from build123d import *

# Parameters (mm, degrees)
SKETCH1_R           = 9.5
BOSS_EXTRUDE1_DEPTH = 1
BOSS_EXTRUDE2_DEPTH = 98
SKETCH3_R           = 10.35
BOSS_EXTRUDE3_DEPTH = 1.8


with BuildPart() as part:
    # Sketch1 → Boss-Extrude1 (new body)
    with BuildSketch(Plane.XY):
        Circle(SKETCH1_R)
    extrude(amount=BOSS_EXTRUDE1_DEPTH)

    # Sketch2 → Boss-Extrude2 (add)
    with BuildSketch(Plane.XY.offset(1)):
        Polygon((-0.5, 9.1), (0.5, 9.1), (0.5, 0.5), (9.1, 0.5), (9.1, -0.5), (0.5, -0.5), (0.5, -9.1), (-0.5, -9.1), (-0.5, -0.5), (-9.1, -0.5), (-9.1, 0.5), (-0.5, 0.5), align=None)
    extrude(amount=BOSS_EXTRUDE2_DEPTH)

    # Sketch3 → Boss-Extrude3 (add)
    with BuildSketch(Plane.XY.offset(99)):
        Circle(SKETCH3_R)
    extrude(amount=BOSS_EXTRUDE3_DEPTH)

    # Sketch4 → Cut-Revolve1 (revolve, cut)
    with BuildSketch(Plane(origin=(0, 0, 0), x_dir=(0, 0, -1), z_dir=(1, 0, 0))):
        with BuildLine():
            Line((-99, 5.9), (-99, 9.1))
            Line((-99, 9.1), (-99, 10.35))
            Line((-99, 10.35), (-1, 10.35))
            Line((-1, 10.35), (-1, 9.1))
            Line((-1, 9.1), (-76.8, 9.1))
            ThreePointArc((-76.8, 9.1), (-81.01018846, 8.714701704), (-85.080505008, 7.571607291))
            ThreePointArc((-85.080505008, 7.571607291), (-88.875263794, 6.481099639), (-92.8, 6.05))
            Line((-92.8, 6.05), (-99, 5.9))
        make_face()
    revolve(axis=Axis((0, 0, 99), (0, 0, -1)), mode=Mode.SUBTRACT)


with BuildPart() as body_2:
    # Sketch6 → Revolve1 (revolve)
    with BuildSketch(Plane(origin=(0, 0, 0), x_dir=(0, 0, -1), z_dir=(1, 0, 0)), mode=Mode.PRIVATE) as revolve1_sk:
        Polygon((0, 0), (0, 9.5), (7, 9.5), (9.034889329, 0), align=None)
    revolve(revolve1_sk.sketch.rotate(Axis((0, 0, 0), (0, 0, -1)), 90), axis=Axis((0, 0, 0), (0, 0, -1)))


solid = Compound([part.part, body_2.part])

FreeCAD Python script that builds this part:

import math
import FreeCAD as App
import Part
import Sketcher
Q = App.Units.Quantity

doc = App.newDocument("Part")
body = doc.addObject("PartDesign::Body", "Body")

# Sketch on XY plane
sketch1 = doc.addObject("Sketcher::SketchObject", "Sketch")
body.addObject(sketch1)
sketch1.AttachmentSupport = (doc.XY_Plane, [""])
sketch1.MapMode = "FlatFace"
sketch1.addGeometry(Part.Circle(App.Vector(0, 0, 0), App.Vector(0, 0, 1), 10), False)
sketch1.addConstraint([
    Sketcher.Constraint("Coincident", 0, 3, -1, 1),
    Sketcher.Constraint("Diameter", 0, 19.0),
])
pad1 = doc.addObject("PartDesign::Pad", "Pad")
body.addObject(pad1)
pad1.Profile = sketch1
pad1.Length = 1

# Sketch on XY plane
sketch2 = doc.addObject("Sketcher::SketchObject", "Sketch001")
body.addObject(sketch2)
sketch2.AttachmentSupport = (doc.XY_Plane, [""])
sketch2.MapMode = "FlatFace"
sketch2.AttachmentOffset = App.Placement(App.Vector(0, 0, 1), App.Rotation())
sketch2.addGeometry([
    Part.LineSegment(App.Vector(0.5, 9.1, 0), App.Vector(-0.5, 9.1, 0)),  # 0
    Part.LineSegment(App.Vector(-0.5, 9.1, 0), App.Vector(-0.5, 0.5, 0)),  # 1
    Part.LineSegment(App.Vector(-0.5, 0.5, 0), App.Vector(-9.1, 0.5, 0)),  # 2
    Part.LineSegment(App.Vector(-9.1, 0.5, 0), App.Vector(-9.1, -0.5, 0)),  # 3
    Part.LineSegment(App.Vector(-9.1, -0.5, 0), App.Vector(-0.5, -0.5, 0)),  # 4
    Part.LineSegment(App.Vector(-0.5, -0.5, 0), App.Vector(-0.5, -9.1, 0)),  # 5
    Part.LineSegment(App.Vector(-0.5, -9.1, 0), App.Vector(0.5, -9.1, 0)),  # 6
    Part.LineSegment(App.Vector(0.5, -9.1, 0), App.Vector(0.5, -0.5, 0)),  # 7
    Part.LineSegment(App.Vector(0.5, -0.5, 0), App.Vector(9.1, -0.5, 0)),  # 8
    Part.LineSegment(App.Vector(9.1, -0.5, 0), App.Vector(9.1, 0.5, 0)),  # 9
    Part.LineSegment(App.Vector(9.1, 0.5, 0), App.Vector(0.5, 0.5, 0)),  # 10
    Part.LineSegment(App.Vector(0.5, 0.5, 0), App.Vector(0.5, 9.1, 0)),  # 11
], False)
sketch2.addConstraint([
    Sketcher.Constraint("Coincident", 0, 2, 1, 1),
    Sketcher.Constraint("Coincident", 1, 2, 2, 1),
    Sketcher.Constraint("Coincident", 2, 2, 3, 1),
    Sketcher.Constraint("Coincident", 3, 2, 4, 1),
    Sketcher.Constraint("Coincident", 4, 2, 5, 1),
    Sketcher.Constraint("Coincident", 5, 2, 6, 1),
    Sketcher.Constraint("Coincident", 6, 2, 7, 1),
    Sketcher.Constraint("Coincident", 7, 2, 8, 1),
    Sketcher.Constraint("Coincident", 8, 2, 9, 1),
    Sketcher.Constraint("Coincident", 9, 2, 10, 1),
    Sketcher.Constraint("Coincident", 10, 2, 11, 1),
    Sketcher.Constraint("Coincident", 11, 2, 0, 1),
    Sketcher.Constraint("Horizontal", 0),
    Sketcher.Constraint("Vertical", 1),
    Sketcher.Constraint("Horizontal", 2),
    Sketcher.Constraint("Vertical", 3),
    Sketcher.Constraint("Horizontal", 4),
    Sketcher.Constraint("Vertical", 5),
    Sketcher.Constraint("Horizontal", 6),
    Sketcher.Constraint("Vertical", 7),
    Sketcher.Constraint("Horizontal", 8),
    Sketcher.Constraint("Vertical", 9),
    Sketcher.Constraint("Horizontal", 10),
    Sketcher.Constraint("Vertical", 11),
    Sketcher.Constraint("Symmetric", 0, 2, 6, 2, -1, 1),
    Sketcher.Constraint("Symmetric", 2, 2, 8, 2, -1, 1),
    Sketcher.Constraint("Symmetric", 4, 2, 10, 2, -1, 1),
    Sketcher.Constraint("Symmetric", 4, 2, 7, 2, -2),
    Sketcher.Constraint("Equal", 10, 1),
    Sketcher.Constraint("Equal", 6, 3),
    Sketcher.Constraint("DistanceX", 0, 2, 0, 1, 1.0),
    Sketcher.Constraint("DistanceX", 2, 2, 2, 1, 8.6),
])
pad2 = doc.addObject("PartDesign::Pad", "Pad001")
body.addObject(pad2)
pad2.Profile = sketch2
pad2.Length = 98

# Sketch on XY plane
sketch3 = doc.addObject("Sketcher::SketchObject", "Sketch002")
body.addObject(sketch3)
sketch3.AttachmentSupport = (doc.XY_Plane, [""])
sketch3.MapMode = "FlatFace"
sketch3.AttachmentOffset = App.Placement(App.Vector(0, 0, 99), App.Rotation())
sketch3.addGeometry(Part.Circle(App.Vector(0, 0, 0), App.Vector(0, 0, 1), 10), False)
sketch3.addConstraint([
    Sketcher.Constraint("Coincident", 0, 3, -1, 1),
    Sketcher.Constraint("Diameter", 0, 20.7),
])
pad3 = doc.addObject("PartDesign::Pad", "Pad002")
body.addObject(pad3)
pad3.Profile = sketch3
pad3.Length = 1.8

# Sketch on YZ plane
sketch4 = doc.addObject("Sketcher::SketchObject", "Sketch003")
body.addObject(sketch4)
sketch4.AttachmentSupport = (doc.YZ_Plane, [""])
sketch4.MapMode = "FlatFace"
sketch4.addGeometry([
    Part.LineSegment(App.Vector(10.3, 99, 0), App.Vector(5.9, 99, 0)),  # 0
    Part.LineSegment(App.Vector(5.9, 99, 0), App.Vector(6, 92.8, 0)),  # 1
    Part.ArcOfCircle(Part.Circle(App.Vector(29.2, 93.4, 0), App.Vector(0, 0, 1), 23.2), math.radians(-178.61), math.radians(-159.08)),  # 2
    Part.ArcOfCircle(Part.Circle(App.Vector(-14.1, 76.8, 0), App.Vector(0, 0, 1), 23.2), math.radians(0), math.radians(21)),  # 3
    Part.LineSegment(App.Vector(9.1, 76.8, 0), App.Vector(9.1, 1, 0)),  # 4
    Part.LineSegment(App.Vector(9.1, 1, 0), App.Vector(10.3, 1, 0)),  # 5
    Part.LineSegment(App.Vector(10.3, 1, 0), App.Vector(10.3, 99, 0)),  # 6
], False)
sketch4.addConstraint([
    Sketcher.Constraint("Coincident", 0, 2, 1, 1),
    Sketcher.Constraint("Tangent", 1, 2, 2, 1),
    Sketcher.Constraint("Tangent", 2, 2, 3, 2),
    Sketcher.Constraint("Tangent", 3, 1, 4, 1),
    Sketcher.Constraint("Coincident", 4, 2, 5, 1),
    Sketcher.Constraint("Coincident", 5, 2, 6, 1),
    Sketcher.Constraint("Coincident", 6, 2, 0, 1),
    Sketcher.Constraint("Horizontal", 0),
    Sketcher.Constraint("Vertical", 4),
    Sketcher.Constraint("Horizontal", 5),
    Sketcher.Constraint("Vertical", 6),
    Sketcher.Constraint("Equal", 2, 3),
    Sketcher.Constraint("DistanceY", 6, 1, 6, 2, 98.0),
    Sketcher.Constraint("DistanceY", 4, 2, 4, 1, 75.8),
    Sketcher.Constraint("DistanceY", -1, 1, 0, 2, 99.0),
    Sketcher.Constraint("DistanceY", 3, 3, 1, 2, 16.0),
    Sketcher.Constraint("DistanceX", 0, 2, 0, 1, 4.45),
    Sketcher.Constraint("DistanceX", 5, 1, 5, 2, 1.25),
    Sketcher.Constraint("DistanceX", -1, 1, 0, 2, 5.9),
    Sketcher.Constraint("Radius", 2, 23.195199),
])
groove = doc.addObject("PartDesign::Groove", "Groove")
body.addObject(groove)
groove.Profile = sketch4
groove.ReferenceAxis = (sketch4, ["V_Axis"])
groove.Angle = 360
body2 = doc.addObject("PartDesign::Body", "Body001")

# Sketch on YZ plane
sketch5 = doc.addObject("Sketcher::SketchObject", "Sketch004")
body2.addObject(sketch5)
sketch5.AttachmentSupport = (doc.getObject("YZ_Plane001"), [""])
sketch5.MapMode = "FlatFace"
sketch5.addGeometry([
    Part.LineSegment(App.Vector(10, 0, 0), App.Vector(0, 0, 0)),
    Part.LineSegment(App.Vector(0, 0, 0), App.Vector(0, -9, 0)),
    Part.LineSegment(App.Vector(0, -9, 0), App.Vector(10, -7, 0)),
    Part.LineSegment(App.Vector(10, -7, 0), App.Vector(10, 0, 0)),
], False)
sketch5.addConstraint([
    Sketcher.Constraint("Coincident", 0, 2, 1, 1),
    Sketcher.Constraint("Coincident", 1, 2, 2, 1),
    Sketcher.Constraint("Coincident", 2, 2, 3, 1),
    Sketcher.Constraint("Coincident", 3, 2, 0, 1),
    Sketcher.Constraint("Horizontal", 0),
    Sketcher.Constraint("Vertical", 1),
    Sketcher.Constraint("Vertical", 3),
    Sketcher.Constraint("Coincident", 0, 2, -1, 1),
    Sketcher.Constraint("DistanceY", 3, 1, 3, 2, 7.0),
    Sketcher.Constraint("DistanceX", 0, 2, 0, 1, 9.5),
    Sketcher.Constraint("Angle", 2, Q("12.09 deg")),
])
revolution = doc.addObject("PartDesign::Revolution", "Revolution")
body2.addObject(revolution)
revolution.Profile = sketch5
revolution.ReferenceAxis = (sketch5, ["V_Axis"])
revolution.Angle = 360

doc.recompute()
